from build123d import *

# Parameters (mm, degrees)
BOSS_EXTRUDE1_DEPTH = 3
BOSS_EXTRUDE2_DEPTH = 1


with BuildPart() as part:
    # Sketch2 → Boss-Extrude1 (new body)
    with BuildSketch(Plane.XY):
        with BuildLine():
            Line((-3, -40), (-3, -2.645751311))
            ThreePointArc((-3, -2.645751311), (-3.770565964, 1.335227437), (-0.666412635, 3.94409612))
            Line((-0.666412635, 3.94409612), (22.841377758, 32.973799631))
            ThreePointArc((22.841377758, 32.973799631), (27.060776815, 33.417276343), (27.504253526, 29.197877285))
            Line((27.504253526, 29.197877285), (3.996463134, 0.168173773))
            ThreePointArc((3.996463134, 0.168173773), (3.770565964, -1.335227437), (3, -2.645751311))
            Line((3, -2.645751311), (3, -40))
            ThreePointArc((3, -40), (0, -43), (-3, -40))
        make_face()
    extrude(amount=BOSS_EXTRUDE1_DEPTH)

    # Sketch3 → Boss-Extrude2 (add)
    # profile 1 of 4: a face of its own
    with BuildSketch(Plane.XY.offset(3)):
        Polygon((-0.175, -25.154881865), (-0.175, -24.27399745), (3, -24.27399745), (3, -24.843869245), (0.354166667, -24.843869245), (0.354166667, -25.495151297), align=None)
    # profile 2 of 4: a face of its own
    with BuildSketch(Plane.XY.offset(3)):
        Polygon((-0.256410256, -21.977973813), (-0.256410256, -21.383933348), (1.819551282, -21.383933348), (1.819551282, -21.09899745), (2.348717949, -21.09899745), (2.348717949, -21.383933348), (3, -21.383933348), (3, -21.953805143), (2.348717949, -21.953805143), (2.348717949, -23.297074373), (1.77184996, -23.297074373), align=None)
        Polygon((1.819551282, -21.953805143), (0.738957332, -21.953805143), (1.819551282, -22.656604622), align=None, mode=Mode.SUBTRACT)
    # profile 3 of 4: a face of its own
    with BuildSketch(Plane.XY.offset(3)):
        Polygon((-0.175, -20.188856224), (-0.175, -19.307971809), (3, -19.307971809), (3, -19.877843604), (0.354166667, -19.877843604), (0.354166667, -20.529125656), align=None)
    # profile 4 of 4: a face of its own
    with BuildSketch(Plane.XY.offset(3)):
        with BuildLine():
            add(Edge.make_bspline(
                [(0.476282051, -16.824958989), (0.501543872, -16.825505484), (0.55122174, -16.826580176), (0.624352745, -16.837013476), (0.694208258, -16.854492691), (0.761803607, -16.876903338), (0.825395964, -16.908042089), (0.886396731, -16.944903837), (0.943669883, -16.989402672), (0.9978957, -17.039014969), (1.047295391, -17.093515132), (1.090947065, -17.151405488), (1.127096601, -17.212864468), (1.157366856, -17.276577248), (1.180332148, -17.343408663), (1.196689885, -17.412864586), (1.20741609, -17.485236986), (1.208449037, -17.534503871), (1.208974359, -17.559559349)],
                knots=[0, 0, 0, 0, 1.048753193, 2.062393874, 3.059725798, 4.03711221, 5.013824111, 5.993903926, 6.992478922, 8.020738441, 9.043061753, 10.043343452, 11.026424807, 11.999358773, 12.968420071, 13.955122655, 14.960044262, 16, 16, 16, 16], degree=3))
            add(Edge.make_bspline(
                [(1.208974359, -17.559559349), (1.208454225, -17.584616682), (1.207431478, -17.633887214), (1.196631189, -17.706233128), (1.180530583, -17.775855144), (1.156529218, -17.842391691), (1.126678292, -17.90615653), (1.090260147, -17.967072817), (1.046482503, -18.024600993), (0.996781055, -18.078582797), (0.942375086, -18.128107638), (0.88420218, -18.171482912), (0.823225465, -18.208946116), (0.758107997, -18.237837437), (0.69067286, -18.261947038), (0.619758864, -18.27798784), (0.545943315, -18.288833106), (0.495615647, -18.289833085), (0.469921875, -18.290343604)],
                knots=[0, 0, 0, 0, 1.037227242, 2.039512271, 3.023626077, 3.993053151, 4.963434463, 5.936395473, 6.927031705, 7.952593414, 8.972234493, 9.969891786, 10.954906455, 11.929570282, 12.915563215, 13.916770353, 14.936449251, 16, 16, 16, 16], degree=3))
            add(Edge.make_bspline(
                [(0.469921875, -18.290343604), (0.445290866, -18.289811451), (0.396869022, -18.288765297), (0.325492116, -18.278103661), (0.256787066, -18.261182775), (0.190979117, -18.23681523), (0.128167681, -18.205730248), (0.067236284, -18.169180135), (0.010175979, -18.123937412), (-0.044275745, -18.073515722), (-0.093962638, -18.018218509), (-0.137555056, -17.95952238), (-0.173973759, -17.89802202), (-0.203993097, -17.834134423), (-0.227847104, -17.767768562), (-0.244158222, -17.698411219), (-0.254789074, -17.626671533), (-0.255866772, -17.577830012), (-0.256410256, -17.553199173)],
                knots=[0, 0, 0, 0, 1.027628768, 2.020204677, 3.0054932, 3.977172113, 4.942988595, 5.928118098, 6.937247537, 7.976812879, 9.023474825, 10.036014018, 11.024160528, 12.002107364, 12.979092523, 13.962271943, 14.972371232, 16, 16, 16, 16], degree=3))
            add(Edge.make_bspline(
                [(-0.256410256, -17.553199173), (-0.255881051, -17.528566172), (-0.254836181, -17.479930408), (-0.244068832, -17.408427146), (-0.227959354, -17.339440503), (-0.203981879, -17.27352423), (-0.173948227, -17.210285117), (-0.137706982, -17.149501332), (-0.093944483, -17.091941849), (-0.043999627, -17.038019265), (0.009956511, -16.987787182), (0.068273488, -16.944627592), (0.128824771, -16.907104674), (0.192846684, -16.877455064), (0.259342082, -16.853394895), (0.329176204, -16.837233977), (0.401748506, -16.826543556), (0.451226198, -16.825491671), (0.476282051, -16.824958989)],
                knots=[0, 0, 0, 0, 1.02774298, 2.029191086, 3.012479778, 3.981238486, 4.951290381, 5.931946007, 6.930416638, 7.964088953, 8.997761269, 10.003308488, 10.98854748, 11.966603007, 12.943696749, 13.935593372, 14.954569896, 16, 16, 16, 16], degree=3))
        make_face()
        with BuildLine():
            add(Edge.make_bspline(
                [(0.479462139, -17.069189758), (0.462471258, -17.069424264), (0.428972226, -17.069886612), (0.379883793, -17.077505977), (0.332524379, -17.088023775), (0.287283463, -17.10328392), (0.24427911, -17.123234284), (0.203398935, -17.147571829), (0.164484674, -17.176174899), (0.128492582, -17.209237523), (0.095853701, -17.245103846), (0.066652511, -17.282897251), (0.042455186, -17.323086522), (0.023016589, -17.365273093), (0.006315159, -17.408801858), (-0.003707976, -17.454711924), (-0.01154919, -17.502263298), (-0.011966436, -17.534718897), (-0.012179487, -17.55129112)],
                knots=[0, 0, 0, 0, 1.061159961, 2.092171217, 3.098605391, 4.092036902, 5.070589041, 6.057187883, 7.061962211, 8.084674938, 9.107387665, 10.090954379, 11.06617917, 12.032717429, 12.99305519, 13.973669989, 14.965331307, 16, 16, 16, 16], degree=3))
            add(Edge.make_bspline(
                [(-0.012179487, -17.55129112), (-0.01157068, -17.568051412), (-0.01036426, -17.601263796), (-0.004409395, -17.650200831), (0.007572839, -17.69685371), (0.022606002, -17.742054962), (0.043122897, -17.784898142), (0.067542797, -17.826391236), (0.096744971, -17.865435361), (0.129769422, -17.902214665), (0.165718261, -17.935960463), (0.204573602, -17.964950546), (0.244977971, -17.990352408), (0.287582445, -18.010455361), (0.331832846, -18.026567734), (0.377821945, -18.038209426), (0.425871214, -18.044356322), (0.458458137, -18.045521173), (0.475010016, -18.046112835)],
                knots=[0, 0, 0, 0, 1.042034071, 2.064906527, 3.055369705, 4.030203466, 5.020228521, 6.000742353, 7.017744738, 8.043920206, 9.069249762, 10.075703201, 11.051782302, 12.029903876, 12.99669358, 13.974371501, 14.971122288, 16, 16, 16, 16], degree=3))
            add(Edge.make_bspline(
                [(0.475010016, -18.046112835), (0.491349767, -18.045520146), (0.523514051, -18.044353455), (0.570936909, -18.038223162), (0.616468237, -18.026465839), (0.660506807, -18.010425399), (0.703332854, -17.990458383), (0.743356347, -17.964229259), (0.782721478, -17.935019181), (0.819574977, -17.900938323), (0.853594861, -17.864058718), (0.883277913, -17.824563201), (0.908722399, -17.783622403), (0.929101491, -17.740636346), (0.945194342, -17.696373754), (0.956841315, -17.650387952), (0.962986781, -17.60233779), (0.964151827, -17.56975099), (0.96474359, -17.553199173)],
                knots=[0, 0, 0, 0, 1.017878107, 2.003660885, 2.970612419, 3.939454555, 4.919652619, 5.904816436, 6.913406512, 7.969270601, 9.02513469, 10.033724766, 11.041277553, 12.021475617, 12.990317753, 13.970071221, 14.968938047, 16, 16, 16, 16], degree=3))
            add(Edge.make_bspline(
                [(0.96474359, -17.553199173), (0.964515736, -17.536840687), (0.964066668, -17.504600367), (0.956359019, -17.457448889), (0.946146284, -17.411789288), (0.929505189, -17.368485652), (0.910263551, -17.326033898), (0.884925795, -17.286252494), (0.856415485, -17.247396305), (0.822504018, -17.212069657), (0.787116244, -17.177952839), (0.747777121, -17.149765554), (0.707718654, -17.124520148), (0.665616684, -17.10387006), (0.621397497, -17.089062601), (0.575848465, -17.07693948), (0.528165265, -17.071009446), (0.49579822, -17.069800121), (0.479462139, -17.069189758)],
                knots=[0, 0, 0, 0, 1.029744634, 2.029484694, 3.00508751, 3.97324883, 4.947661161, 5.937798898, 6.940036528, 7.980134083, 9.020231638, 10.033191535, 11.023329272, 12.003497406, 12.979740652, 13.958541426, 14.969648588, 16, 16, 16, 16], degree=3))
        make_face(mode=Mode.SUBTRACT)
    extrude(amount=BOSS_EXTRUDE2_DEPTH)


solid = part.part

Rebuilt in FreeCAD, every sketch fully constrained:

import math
import FreeCAD as App
import Part
import Sketcher

V = App.Vector
Q = App.Units.Quantity


def add_polygon(sketch, points):
    """Adds a closed chain of lines whose ends are joined by coincident constraints."""
    first, n = sketch.GeometryCount, len(points)
    for a, b in zip(points, points[1:] + points[:1]):
        sketch.addGeometry(Part.LineSegment(App.Vector(*a, 0), App.Vector(*b, 0)), False)
    for i in range(n):
        sketch.addConstraint(Sketcher.Constraint("Coincident", first + i, 2, first + (i + 1) % n, 1))

doc = App.newDocument("Part")
body = doc.addObject("PartDesign::Body", "Body")

# Sketch on XY plane
sketch1 = body.newObject("Sketcher::SketchObject", "Sketch")
sketch1.AttachmentSupport = (doc.getObject("XY_Plane"), [""])
sketch1.MapMode = "FlatFace"
sketch1.addGeometry(Part.LineSegment(V(-3, -2.6, 0), V(-3, -40, 0)), False)
sketch1.addGeometry(Part.ArcOfCircle(Part.Circle(V(0, -40, 0), V(0, 0, 1), 3), math.radians(180), math.radians(360)), False)
sketch1.addGeometry(Part.LineSegment(V(3, -40, 0), V(3, -2.6, 0)), False)
sketch1.addGeometry(Part.ArcOfCircle(Part.Circle(V(0, 0, 0), V(0, 0, 1), 4), math.radians(-41), math.radians(2)), False)
sketch1.addGeometry(Part.LineSegment(V(4, 0.2, 0), V(27.5, 29.2, 0)), False)
sketch1.addGeometry(Part.ArcOfCircle(Part.Circle(V(25.2, 31.1, 0), V(0, 0, 1), 3), math.radians(-39), math.radians(141)), False)
sketch1.addGeometry(Part.LineSegment(V(22.8, 33, 0), V(-0.7, 3.9, 0)), False)
sketch1.addGeometry(Part.ArcOfCircle(Part.Circle(V(0, 0, 0), V(0, 0, 1), 4), math.radians(100), math.radians(221)), False)
sketch1.addConstraint(Sketcher.Constraint("Tangent", 0, 2, 1, 1))
sketch1.addConstraint(Sketcher.Constraint("Tangent", 1, 2, 2, 1))
sketch1.addConstraint(Sketcher.Constraint("Coincident", 2, 2, 3, 1))
sketch1.addConstraint(Sketcher.Constraint("Coincident", 3, 2, 4, 1))
sketch1.addConstraint(Sketcher.Constraint("Tangent", 4, 2, 5, 1))
sketch1.addConstraint(Sketcher.Constraint("Tangent", 5, 2, 6, 1))
sketch1.addConstraint(Sketcher.Constraint("Coincident", 6, 2, 7, 1))
sketch1.addConstraint(Sketcher.Constraint("Coincident", 7, 2, 0, 1))
sketch1.addConstraint(Sketcher.Constraint("Vertical", 0))
sketch1.addConstraint(Sketcher.Constraint("Vertical", 2))
sketch1.addConstraint(Sketcher.Constraint("Coincident", 3, 3, -1, 1))
sketch1.addConstraint(Sketcher.Constraint("Coincident", 7, 3, -1, 1))
sketch1.addConstraint(Sketcher.Constraint("Equal", 1, 5))
sketch1.addConstraint(Sketcher.Constraint("Equal", 3, 7))
sketch1.addConstraint(Sketcher.Constraint("PointOnObject", 1, 3, -2))
sketch1.addConstraint(Sketcher.Constraint("Parallel", 4, 6))
sketch1.addConstraint(Sketcher.Constraint("Equal", 4, 6))
sketch1.addConstraint(Sketcher.Constraint("Radius", 1, Q("3 mm")))
sketch1.addConstraint(Sketcher.Constraint("Radius", 3, Q("4 mm")))
sketch1.addConstraint(Sketcher.Constraint("Angle", 4, Q("51 deg")))
sketch1.addConstraint(Sketcher.Constraint("DistanceY", 1, 3, -1, 1, Q("40 mm")))
sketch1.addConstraint(Sketcher.Constraint("DistanceY", -1, 1, 5, 2, Q("32.9738 mm")))
pad1 = body.newObject("PartDesign::Pad", "Pad")
pad1.Profile = sketch1
pad1.Length = 3

# Sketch on XY plane
sketch2 = body.newObject("Sketcher::SketchObject", "Sketch001")
sketch2.AttachmentSupport = (doc.getObject("XY_Plane"), [""])
sketch2.MapMode = "FlatFace"
sketch2.AttachmentOffset = App.Placement(V(0, 0, 3), App.Rotation())
add_polygon(sketch2, [(-0.175, -24.273997), (-0.175, -25.154882), (0.354167, -25.495151), (0.354167, -24.843869), (3, -24.843869), (3, -24.273997)])  # lines 0-5
add_polygon(sketch2, [(-0.25641, -21.383933), (-0.25641, -21.977974), (1.77185, -23.297074), (2.348718, -23.297074), (2.348718, -21.953805), (3, -21.953805), (3, -21.383933), (2.348718, -21.383933), (2.348718, -21.098997), (1.819551, -21.098997), (1.819551, -21.383933)])  # lines 6-16
add_polygon(sketch2, [(1.819551, -21.953805), (1.819551, -22.656605), (0.738957, -21.953805)])  # lines 17-19
add_polygon(sketch2, [(-0.175, -19.307972), (-0.175, -20.188856), (0.354167, -20.529126), (0.354167, -19.877844), (3, -19.877844), (3, -19.307972)])  # lines 20-25
sketch2.addGeometry(Part.BSplineCurve([V(0.476282, -16.824959, 0), V(0.501544, -16.825505, 0), V(0.551222, -16.82658, 0), V(0.624353, -16.837013, 0), V(0.694208, -16.854493, 0), V(0.761804, -16.876903, 0), V(0.825396, -16.908042, 0), V(0.886397, -16.944904, 0), V(0.94367, -16.989403, 0), V(0.997896, -17.039015, 0), V(1.047295, -17.093515, 0), V(1.090947, -17.151405, 0), V(1.127097, -17.212864, 0), V(1.157367, -17.276577, 0), V(1.180332, -17.343409, 0), V(1.19669, -17.412865, 0), V(1.207416, -17.485237, 0), V(1.208449, -17.534504, 0), V(1.208974, -17.559559, 0)], [4, 1, 1, 1, 1, 1, 1, 1, 1, 1, 1, 1, 1, 1, 1, 1, 4], [0, 1.048753193, 2.062393874, 3.059725798, 4.03711221, 5.013824111, 5.993903926, 6.992478922, 8.020738441, 9.043061753, 10.043343452, 11.026424807, 11.999358773, 12.968420071, 13.955122655, 14.960044262, 16], False, 3, [1, 1, 1, 1, 1, 1, 1, 1, 1, 1, 1, 1, 1, 1, 1, 1, 1, 1, 1], False), False)  # 26
sketch2.addGeometry(Part.BSplineCurve([V(-0.25641, -17.553199, 0), V(-0.255881, -17.528566, 0), V(-0.254836, -17.47993, 0), V(-0.244069, -17.408427, 0), V(-0.227959, -17.339441, 0), V(-0.203982, -17.273524, 0), V(-0.173948, -17.210285, 0), V(-0.137707, -17.149501, 0), V(-0.093944, -17.091942, 0), V(-0.044, -17.038019, 0), V(0.009957, -16.987787, 0), V(0.068273, -16.944628, 0), V(0.128825, -16.907105, 0), V(0.192847, -16.877455, 0), V(0.259342, -16.853395, 0), V(0.329176, -16.837234, 0), V(0.401749, -16.826544, 0), V(0.451226, -16.825492, 0), V(0.476282, -16.824959, 0)], [4, 1, 1, 1, 1, 1, 1, 1, 1, 1, 1, 1, 1, 1, 1, 1, 4], [0, 1.02774298, 2.029191086, 3.012479778, 3.981238486, 4.951290381, 5.931946007, 6.930416638, 7.964088953, 8.997761269, 10.003308488, 10.98854748, 11.966603007, 12.943696749, 13.935593372, 14.954569896, 16], False, 3, [1, 1, 1, 1, 1, 1, 1, 1, 1, 1, 1, 1, 1, 1, 1, 1, 1, 1, 1], False), False)  # 27
sketch2.addGeometry(Part.BSplineCurve([V(0.469922, -18.290344, 0), V(0.445291, -18.289811, 0), V(0.396869, -18.288765, 0), V(0.325492, -18.278104, 0), V(0.256787, -18.261183, 0), V(0.190979, -18.236815, 0), V(0.128168, -18.20573, 0), V(0.067236, -18.16918, 0), V(0.010176, -18.123937, 0), V(-0.044276, -18.073516, 0), V(-0.093963, -18.018219, 0), V(-0.137555, -17.959522, 0), V(-0.173974, -17.898022, 0), V(-0.203993, -17.834134, 0), V(-0.227847, -17.767769, 0), V(-0.244158, -17.698411, 0), V(-0.254789, -17.626672, 0), V(-0.255867, -17.57783, 0), V(-0.25641, -17.553199, 0)], [4, 1, 1, 1, 1, 1, 1, 1, 1, 1, 1, 1, 1, 1, 1, 1, 4], [0, 1.027628768, 2.020204677, 3.0054932, 3.977172113, 4.942988595, 5.928118098, 6.937247537, 7.976812879, 9.023474825, 10.036014018, 11.024160528, 12.002107364, 12.979092523, 13.962271943, 14.972371232, 16], False, 3, [1, 1, 1, 1, 1, 1, 1, 1, 1, 1, 1, 1, 1, 1, 1, 1, 1, 1, 1], False), False)  # 28
sketch2.addGeometry(Part.BSplineCurve([V(1.208974, -17.559559, 0), V(1.208454, -17.584617, 0), V(1.207431, -17.633887, 0), V(1.196631, -17.706233, 0), V(1.180531, -17.775855, 0), V(1.156529, -17.842392, 0), V(1.126678, -17.906157, 0), V(1.09026, -17.967073, 0), V(1.046483, -18.024601, 0), V(0.996781, -18.078583, 0), V(0.942375, -18.128108, 0), V(0.884202, -18.171483, 0), V(0.823225, -18.208946, 0), V(0.758108, -18.237837, 0), V(0.690673, -18.261947, 0), V(0.619759, -18.277988, 0), V(0.545943, -18.288833, 0), V(0.495616, -18.289833, 0), V(0.469922, -18.290344, 0)], [4, 1, 1, 1, 1, 1, 1, 1, 1, 1, 1, 1, 1, 1, 1, 1, 4], [0, 1.037227242, 2.039512271, 3.023626077, 3.993053151, 4.963434463, 5.936395473, 6.927031705, 7.952593414, 8.972234493, 9.969891786, 10.954906455, 11.929570282, 12.915563215, 13.916770353, 14.936449251, 16], False, 3, [1, 1, 1, 1, 1, 1, 1, 1, 1, 1, 1, 1, 1, 1, 1, 1, 1, 1, 1], False), False)  # 29
sketch2.addGeometry(Part.BSplineCurve([V(0.964744, -17.553199, 0), V(0.964516, -17.536841, 0), V(0.964067, -17.5046, 0), V(0.956359, -17.457449, 0), V(0.946146, -17.411789, 0), V(0.929505, -17.368486, 0), V(0.910264, -17.326034, 0), V(0.884926, -17.286252, 0), V(0.856415, -17.247396, 0), V(0.822504, -17.21207, 0), V(0.787116, -17.177953, 0), V(0.747777, -17.149766, 0), V(0.707719, -17.12452, 0), V(0.665617, -17.10387, 0), V(0.621397, -17.089063, 0), V(0.575848, -17.076939, 0), V(0.528165, -17.071009, 0), V(0.495798, -17.0698, 0), V(0.479462, -17.06919, 0)], [4, 1, 1, 1, 1, 1, 1, 1, 1, 1, 1, 1, 1, 1, 1, 1, 4], [0, 1.029744634, 2.029484694, 3.00508751, 3.97324883, 4.947661161, 5.937798898, 6.940036528, 7.980134083, 9.020231638, 10.033191535, 11.023329272, 12.003497406, 12.979740652, 13.958541426, 14.969648588, 16], False, 3, [1, 1, 1, 1, 1, 1, 1, 1, 1, 1, 1, 1, 1, 1, 1, 1, 1, 1, 1], False), False)  # 30
sketch2.addGeometry(Part.BSplineCurve([V(0.47501, -18.046113, 0), V(0.49135, -18.04552, 0), V(0.523514, -18.044353, 0), V(0.570937, -18.038223, 0), V(0.616468, -18.026466, 0), V(0.660507, -18.010425, 0), V(0.703333, -17.990458, 0), V(0.743356, -17.964229, 0), V(0.782721, -17.935019, 0), V(0.819575, -17.900938, 0), V(0.853595, -17.864059, 0), V(0.883278, -17.824563, 0), V(0.908722, -17.783622, 0), V(0.929101, -17.740636, 0), V(0.945194, -17.696374, 0), V(0.956841, -17.650388, 0), V(0.962987, -17.602338, 0), V(0.964152, -17.569751, 0), V(0.964744, -17.553199, 0)], [4, 1, 1, 1, 1, 1, 1, 1, 1, 1, 1, 1, 1, 1, 1, 1, 4], [0, 1.017878107, 2.003660885, 2.970612419, 3.939454555, 4.919652619, 5.904816436, 6.913406512, 7.969270601, 9.02513469, 10.033724766, 11.041277553, 12.021475617, 12.990317753, 13.970071221, 14.968938047, 16], False, 3, [1, 1, 1, 1, 1, 1, 1, 1, 1, 1, 1, 1, 1, 1, 1, 1, 1, 1, 1], False), False)  # 31
sketch2.addGeometry(Part.BSplineCurve([V(-0.012179, -17.551291, 0), V(-0.011571, -17.568051, 0), V(-0.010364, -17.601264, 0), V(-0.004409, -17.650201, 0), V(0.007573, -17.696854, 0), V(0.022606, -17.742055, 0), V(0.043123, -17.784898, 0), V(0.067543, -17.826391, 0), V(0.096745, -17.865435, 0), V(0.129769, -17.902215, 0), V(0.165718, -17.93596, 0), V(0.204574, -17.964951, 0), V(0.244978, -17.990352, 0), V(0.287582, -18.010455, 0), V(0.331833, -18.026568, 0), V(0.377822, -18.038209, 0), V(0.425871, -18.044356, 0), V(0.458458, -18.045521, 0), V(0.47501, -18.046113, 0)], [4, 1, 1, 1, 1, 1, 1, 1, 1, 1, 1, 1, 1, 1, 1, 1, 4], [0, 1.042034071, 2.064906527, 3.055369705, 4.030203466, 5.020228521, 6.000742353, 7.017744738, 8.043920206, 9.069249762, 10.075703201, 11.051782302, 12.029903876, 12.99669358, 13.974371501, 14.971122288, 16], False, 3, [1, 1, 1, 1, 1, 1, 1, 1, 1, 1, 1, 1, 1, 1, 1, 1, 1, 1, 1], False), False)  # 32
sketch2.addGeometry(Part.BSplineCurve([V(0.479462, -17.06919, 0), V(0.462471, -17.069424, 0), V(0.428972, -17.069887, 0), V(0.379884, -17.077506, 0), V(0.332524, -17.088024, 0), V(0.287283, -17.103284, 0), V(0.244279, -17.123234, 0), V(0.203399, -17.147572, 0), V(0.164485, -17.176175, 0), V(0.128493, -17.209238, 0), V(0.095854, -17.245104, 0), V(0.066653, -17.282897, 0), V(0.042455, -17.323087, 0), V(0.023017, -17.365273, 0), V(0.006315, -17.408802, 0), V(-0.003708, -17.454712, 0), V(-0.011549, -17.502263, 0), V(-0.011966, -17.534719, 0), V(-0.012179, -17.551291, 0)], [4, 1, 1, 1, 1, 1, 1, 1, 1, 1, 1, 1, 1, 1, 1, 1, 4], [0, 1.061159961, 2.092171217, 3.098605391, 4.092036902, 5.070589041, 6.057187883, 7.061962211, 8.084674938, 9.107387665, 10.090954379, 11.06617917, 12.032717429, 12.99305519, 13.973669989, 14.965331307, 16], False, 3, [1, 1, 1, 1, 1, 1, 1, 1, 1, 1, 1, 1, 1, 1, 1, 1, 1, 1, 1], False), False)  # 33
sketch2.addConstraint(Sketcher.Constraint("Block", 26))
sketch2.addConstraint(Sketcher.Constraint("Block", 27))
sketch2.addConstraint(Sketcher.Constraint("Block", 28))
sketch2.addConstraint(Sketcher.Constraint("Block", 29))
sketch2.addConstraint(Sketcher.Constraint("Block", 30))
sketch2.addConstraint(Sketcher.Constraint("Block", 31))
sketch2.addConstraint(Sketcher.Constraint("Block", 32))
sketch2.addConstraint(Sketcher.Constraint("Block", 33))
sketch2.addConstraint(Sketcher.Constraint("Vertical", 0))
sketch2.addConstraint(Sketcher.Constraint("Vertical", 2))
sketch2.addConstraint(Sketcher.Constraint("Horizontal", 3))
sketch2.addConstraint(Sketcher.Constraint("Vertical", 4))
sketch2.addConstraint(Sketcher.Constraint("Horizontal", 5))
sketch2.addConstraint(Sketcher.Constraint("Vertical", 6))
sketch2.addConstraint(Sketcher.Constraint("Horizontal", 8))
sketch2.addConstraint(Sketcher.Constraint("Vertical", 9))
sketch2.addConstraint(Sketcher.Constraint("Horizontal", 10))
sketch2.addConstraint(Sketcher.Constraint("Vertical", 11))
sketch2.addConstraint(Sketcher.Constraint("Horizontal", 12))
sketch2.addConstraint(Sketcher.Constraint("Vertical", 13))
sketch2.addConstraint(Sketcher.Constraint("Horizontal", 14))
sketch2.addConstraint(Sketcher.Constraint("Vertical", 15))
sketch2.addConstraint(Sketcher.Constraint("Horizontal", 16))
sketch2.addConstraint(Sketcher.Constraint("Vertical", 17))
sketch2.addConstraint(Sketcher.Constraint("Horizontal", 19))
sketch2.addConstraint(Sketcher.Constraint("Vertical", 20))
sketch2.addConstraint(Sketcher.Constraint("Vertical", 22))
sketch2.addConstraint(Sketcher.Constraint("Horizontal", 23))
sketch2.addConstraint(Sketcher.Constraint("Vertical", 24))
sketch2.addConstraint(Sketcher.Constraint("Horizontal", 25))
sketch2.addConstraint(Sketcher.Constraint("Parallel", 1, 21))
sketch2.addConstraint(Sketcher.Constraint("Horizontal", 12, 2, 15, 2))
sketch2.addConstraint(Sketcher.Constraint("Horizontal", 10, 2, 18, 2))
sketch2.addConstraint(Sketcher.Constraint("Vertical", 4, 2, 10, 2))
sketch2.addConstraint(Sketcher.Constraint("Vertical", 9, 2, 12, 2))
sketch2.addConstraint(Sketcher.Constraint("Vertical", 15, 2, 17, 2))
sketch2.addConstraint(Sketcher.Constraint("Vertical", 5, 2, 20, 2))
sketch2.addConstraint(Sketcher.Constraint("Vertical", 2, 2, 21, 2))
sketch2.addConstraint(Sketcher.Constraint("Vertical", 11, 2, 23, 2))
sketch2.addConstraint(Sketcher.Constraint("Equal", 12, 2))
sketch2.addConstraint(Sketcher.Constraint("Equal", 4, 11))
sketch2.addConstraint(Sketcher.Constraint("Equal", 0, 20))
sketch2.addConstraint(Sketcher.Constraint("Equal", 2, 22))
sketch2.addConstraint(Sketcher.Constraint("DistanceX", -1, 1, 3, 2, Q("3 mm")))
sketch2.addConstraint(Sketcher.Constraint("DistanceX", 5, 2, 5, 1, Q("3.175 mm")))
sketch2.addConstraint(Sketcher.Constraint("DistanceY", 17, 2, 17, 1, Q("0.702799 mm")))
sketch2.addConstraint(Sketcher.Constraint("DistanceX", 16, 2, 16, 1, Q("2.075962 mm")))
sketch2.addConstraint(Sketcher.Constraint("DistanceY", 4, 1, 4, 2, Q("0.569872 mm")))
sketch2.addConstraint(Sketcher.Constraint("DistanceY", 6, 2, 6, 1, Q("0.59404 mm")))
sketch2.addConstraint(Sketcher.Constraint("DistanceY", 9, 1, 9, 2, Q("1.343269 mm")))
sketch2.addConstraint(Sketcher.Constraint("DistanceX", 7, 2, 17, 2, Q("0.047701 mm")))
sketch2.addConstraint(Sketcher.Constraint("DistanceX", 3, 1, 3, 2, Q("2.645833 mm")))
sketch2.addConstraint(Sketcher.Constraint("DistanceX", 8, 1, 8, 2, Q("0.576868 mm")))
sketch2.addConstraint(Sketcher.Constraint("DistanceX", 10, 1, 10, 2, Q("0.651282 mm")))
sketch2.addConstraint(Sketcher.Constraint("DistanceX", 19, 1, 19, 2, Q("1.080594 mm")))
sketch2.addConstraint(Sketcher.Constraint("DistanceY", 0, 2, 0, 1, Q("0.880884 mm")))
sketch2.addConstraint(Sketcher.Constraint("DistanceY", 13, 1, 13, 2, Q("0.284936 mm")))
sketch2.addConstraint(Sketcher.Constraint("DistanceY", 0, 2, -1, 1, Q("25.154882 mm")))
sketch2.addConstraint(Sketcher.Constraint("DistanceY", 24, 2, -1, 1, Q("19.307972 mm")))
sketch2.addConstraint(Sketcher.Constraint("DistanceY", 0, 2, 6, 2, Q("3.176908 mm")))
pad2 = body.newObject("PartDesign::Pad", "Pad001")
pad2.Profile = sketch2
pad2.Length = 1

doc.recompute()
